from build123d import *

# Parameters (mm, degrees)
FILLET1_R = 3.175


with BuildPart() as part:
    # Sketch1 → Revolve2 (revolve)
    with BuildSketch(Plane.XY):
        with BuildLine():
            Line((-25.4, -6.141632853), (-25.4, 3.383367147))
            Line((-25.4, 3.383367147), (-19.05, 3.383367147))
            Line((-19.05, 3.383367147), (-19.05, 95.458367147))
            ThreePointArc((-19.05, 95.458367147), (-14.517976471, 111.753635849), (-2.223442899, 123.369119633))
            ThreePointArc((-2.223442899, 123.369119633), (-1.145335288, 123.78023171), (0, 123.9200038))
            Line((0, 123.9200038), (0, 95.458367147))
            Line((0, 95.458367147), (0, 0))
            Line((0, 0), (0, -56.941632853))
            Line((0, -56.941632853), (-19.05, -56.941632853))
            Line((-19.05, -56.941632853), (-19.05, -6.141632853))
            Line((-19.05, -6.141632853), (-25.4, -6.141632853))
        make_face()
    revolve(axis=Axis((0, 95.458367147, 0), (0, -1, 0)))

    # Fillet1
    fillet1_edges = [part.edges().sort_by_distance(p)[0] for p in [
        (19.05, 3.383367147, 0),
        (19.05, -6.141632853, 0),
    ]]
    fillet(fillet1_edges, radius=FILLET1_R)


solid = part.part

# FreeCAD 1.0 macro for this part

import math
import FreeCAD as App
import Part
import Sketcher
Q = App.Units.Quantity


def edges_at(feature, points):
    """Names of the edges that pass closest to the given points."""
    edges = feature.Shape.Edges
    near = lambda p: min(range(len(edges)), key=lambda i: edges[i].distToShape(Part.Vertex(*p))[0])
    return sorted({f"Edge{near(p) + 1}" for p in points})

doc = App.newDocument("Part")
body = doc.addObject("PartDesign::Body", "Body")

# Sketch on XY plane
sketch1 = body.newObject("Sketcher::SketchObject", "Sketch")
sketch1.AttachmentSupport = (doc.getObject("XY_Plane"), [""])
sketch1.MapMode = "FlatFace"
sketch1.addGeometry(Part.LineSegment(App.Vector(-25.4, 3.4, 0), App.Vector(-25.4, -6.1, 0)), False)
sketch1.addGeometry(Part.LineSegment(App.Vector(-25.4, -6.1, 0), App.Vector(-19.1, -6.1, 0)), False)
sketch1.addGeometry(Part.LineSegment(App.Vector(-19.1, -6.1, 0), App.Vector(-19.1, -56.9, 0)), False)
sketch1.addGeometry(Part.LineSegment(App.Vector(-19.1, -56.9, 0), App.Vector(0, -56.9, 0)), False)
sketch1.addGeometry(Part.LineSegment(App.Vector(0, -56.9, 0), App.Vector(0, 123.9, 0)), False)
sketch1.addGeometry(Part.ArcOfCircle(Part.Circle(App.Vector(0, 119.2, 0), App.Vector(0, 0, 1), 4.8), math.radians(90), math.radians(118)), False)
sketch1.addGeometry(Part.ArcOfCircle(Part.Circle(App.Vector(12.5, 95.5, 0), App.Vector(0, 0, 1), 31.6), math.radians(118), math.radians(180)), False)
sketch1.addGeometry(Part.LineSegment(App.Vector(-19.1, 95.5, 0), App.Vector(-19.1, 3.4, 0)), False)
sketch1.addGeometry(Part.LineSegment(App.Vector(-19.1, 3.4, 0), App.Vector(-25.4, 3.4, 0)), False)
sketch1.addConstraint(Sketcher.Constraint("Coincident", 0, 2, 1, 1))
sketch1.addConstraint(Sketcher.Constraint("Coincident", 1, 2, 2, 1))
sketch1.addConstraint(Sketcher.Constraint("Coincident", 2, 2, 3, 1))
sketch1.addConstraint(Sketcher.Constraint("Coincident", 3, 2, 4, 1))
sketch1.addConstraint(Sketcher.Constraint("Coincident", 4, 2, 5, 1))
sketch1.addConstraint(Sketcher.Constraint("Tangent", 5, 2, 6, 1))
sketch1.addConstraint(Sketcher.Constraint("Tangent", 6, 2, 7, 1))
sketch1.addConstraint(Sketcher.Constraint("Coincident", 7, 2, 8, 1))
sketch1.addConstraint(Sketcher.Constraint("Coincident", 8, 2, 0, 1))
sketch1.addConstraint(Sketcher.Constraint("Vertical", 0))
sketch1.addConstraint(Sketcher.Constraint("Horizontal", 1))
sketch1.addConstraint(Sketcher.Constraint("Vertical", 2))
sketch1.addConstraint(Sketcher.Constraint("Horizontal", 3))
sketch1.addConstraint(Sketcher.Constraint("Vertical", 4))
sketch1.addConstraint(Sketcher.Constraint("Vertical", 7))
sketch1.addConstraint(Sketcher.Constraint("Horizontal", 8))
sketch1.addConstraint(Sketcher.Constraint("PointOnObject", 5, 3, -2))
sketch1.addConstraint(Sketcher.Constraint("PointOnObject", 3, 2, -2))
sketch1.addConstraint(Sketcher.Constraint("Vertical", 2, 2, 6, 2))
sketch1.addConstraint(Sketcher.Constraint("DistanceY", 2, 2, 2, 1, Q("2 in")))
sketch1.addConstraint(Sketcher.Constraint("DistanceX", 0, 2, -1, 1, Q("1 in")))
sketch1.addConstraint(Sketcher.Constraint("Radius", 5, Q("0.1875 in")))
sketch1.addConstraint(Sketcher.Constraint("DistanceY", 0, 2, 6, 3, Q("4 in")))
sketch1.addConstraint(Sketcher.Constraint("DistanceX", 1, 1, 1, 2, Q("0.25 in")))
sketch1.addConstraint(Sketcher.Constraint("DistanceY", 0, 2, 0, 1, Q("0.375 in")))
sketch1.addConstraint(Sketcher.Constraint("Radius", 6, Q("31.561511 mm")))
sketch1.addConstraint(Sketcher.Constraint("DistanceY", -1, 1, 5, 2, Q("123.36912 mm")))
revolution = body.newObject("PartDesign::Revolution", "Revolution")
revolution.Profile = sketch1
revolution.ReferenceAxis = (sketch1, ["V_Axis"])
revolution.Angle = 360
doc.recompute()

fillet = body.newObject("PartDesign::Fillet", "Fillet")
fillet.Base = (revolution, edges_at(revolution, [(19.05, 3.383, 0), (19.05, -6.142, 0)]))
fillet.Radius = Q("0.125 in")

doc.recompute()
